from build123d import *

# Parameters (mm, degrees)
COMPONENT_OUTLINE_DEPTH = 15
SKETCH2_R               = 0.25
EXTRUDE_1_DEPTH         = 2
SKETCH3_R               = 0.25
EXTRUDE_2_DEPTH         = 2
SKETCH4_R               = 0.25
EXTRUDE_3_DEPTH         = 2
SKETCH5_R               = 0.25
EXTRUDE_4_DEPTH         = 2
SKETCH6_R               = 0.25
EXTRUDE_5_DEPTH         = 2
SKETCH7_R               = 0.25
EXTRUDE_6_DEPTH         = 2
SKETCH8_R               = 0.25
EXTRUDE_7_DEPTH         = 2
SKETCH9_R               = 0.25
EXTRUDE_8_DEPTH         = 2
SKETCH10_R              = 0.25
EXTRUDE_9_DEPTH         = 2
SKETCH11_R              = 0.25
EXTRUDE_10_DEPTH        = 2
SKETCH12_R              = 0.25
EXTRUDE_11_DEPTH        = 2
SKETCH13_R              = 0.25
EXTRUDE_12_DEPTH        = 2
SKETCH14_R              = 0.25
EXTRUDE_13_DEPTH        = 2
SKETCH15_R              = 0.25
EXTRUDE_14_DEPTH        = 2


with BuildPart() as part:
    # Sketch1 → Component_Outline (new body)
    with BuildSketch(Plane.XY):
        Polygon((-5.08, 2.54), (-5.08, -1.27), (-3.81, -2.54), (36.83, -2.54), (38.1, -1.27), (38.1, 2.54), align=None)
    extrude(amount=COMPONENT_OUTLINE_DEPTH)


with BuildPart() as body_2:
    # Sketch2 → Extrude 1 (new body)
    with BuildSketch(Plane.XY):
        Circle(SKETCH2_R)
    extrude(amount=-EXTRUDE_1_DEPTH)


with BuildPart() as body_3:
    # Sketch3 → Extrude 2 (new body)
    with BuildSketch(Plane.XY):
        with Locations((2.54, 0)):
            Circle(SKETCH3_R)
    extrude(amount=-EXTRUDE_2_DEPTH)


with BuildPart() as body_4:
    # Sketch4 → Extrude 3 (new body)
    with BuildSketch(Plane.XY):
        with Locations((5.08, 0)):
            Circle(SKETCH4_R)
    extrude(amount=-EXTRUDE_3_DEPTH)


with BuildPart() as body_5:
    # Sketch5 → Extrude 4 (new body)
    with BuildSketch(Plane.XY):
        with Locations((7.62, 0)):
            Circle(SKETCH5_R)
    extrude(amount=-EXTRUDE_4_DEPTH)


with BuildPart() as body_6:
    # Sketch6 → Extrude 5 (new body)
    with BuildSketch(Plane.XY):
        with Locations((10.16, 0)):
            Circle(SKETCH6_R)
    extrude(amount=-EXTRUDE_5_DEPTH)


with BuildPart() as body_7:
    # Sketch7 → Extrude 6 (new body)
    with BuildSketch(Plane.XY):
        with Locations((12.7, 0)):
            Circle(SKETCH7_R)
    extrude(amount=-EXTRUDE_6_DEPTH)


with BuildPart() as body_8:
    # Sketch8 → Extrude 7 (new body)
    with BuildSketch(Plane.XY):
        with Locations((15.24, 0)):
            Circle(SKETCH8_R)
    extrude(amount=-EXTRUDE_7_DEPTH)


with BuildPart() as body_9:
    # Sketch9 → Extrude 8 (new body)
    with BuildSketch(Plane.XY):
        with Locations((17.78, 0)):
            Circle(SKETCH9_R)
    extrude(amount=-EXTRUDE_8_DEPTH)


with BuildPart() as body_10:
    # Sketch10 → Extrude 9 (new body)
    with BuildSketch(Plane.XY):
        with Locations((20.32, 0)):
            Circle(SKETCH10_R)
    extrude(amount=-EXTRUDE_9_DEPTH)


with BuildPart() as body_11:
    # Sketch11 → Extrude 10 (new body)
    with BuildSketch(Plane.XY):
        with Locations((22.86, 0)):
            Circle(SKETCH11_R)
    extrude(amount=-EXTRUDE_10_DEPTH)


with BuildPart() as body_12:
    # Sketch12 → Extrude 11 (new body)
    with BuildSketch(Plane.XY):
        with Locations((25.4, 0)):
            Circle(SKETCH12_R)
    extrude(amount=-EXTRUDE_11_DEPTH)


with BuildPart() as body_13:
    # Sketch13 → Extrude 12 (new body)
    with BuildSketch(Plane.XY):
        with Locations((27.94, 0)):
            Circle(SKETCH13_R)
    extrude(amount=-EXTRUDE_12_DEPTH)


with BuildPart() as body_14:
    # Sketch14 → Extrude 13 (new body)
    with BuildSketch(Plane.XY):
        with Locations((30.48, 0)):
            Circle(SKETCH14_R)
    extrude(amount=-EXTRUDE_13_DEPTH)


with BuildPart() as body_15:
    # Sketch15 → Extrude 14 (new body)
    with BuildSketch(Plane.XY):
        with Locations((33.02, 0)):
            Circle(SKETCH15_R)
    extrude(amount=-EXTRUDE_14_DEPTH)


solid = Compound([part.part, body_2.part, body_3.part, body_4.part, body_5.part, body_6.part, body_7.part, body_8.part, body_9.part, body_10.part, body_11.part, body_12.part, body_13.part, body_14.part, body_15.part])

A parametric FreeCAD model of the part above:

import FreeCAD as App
import Part
import Sketcher
Q = App.Units.Quantity

doc = App.newDocument("Part")
body = doc.addObject("PartDesign::Body", "Body")

# Sketch on XY plane
sketch1 = body.newObject("Sketcher::SketchObject", "Sketch")
sketch1.AttachmentSupport = (doc.getObject("XY_Plane"), [""])
sketch1.MapMode = "FlatFace"
sketch1.addGeometry([
    Part.LineSegment(App.Vector(-5.1, 2.5, 0), App.Vector(-5.1, -1.3, 0)),  # 0
    Part.LineSegment(App.Vector(-5.1, -1.3, 0), App.Vector(-3.8, -2.5, 0)),  # 1
    Part.LineSegment(App.Vector(-3.8, -2.5, 0), App.Vector(36.8, -2.5, 0)),  # 2
    Part.LineSegment(App.Vector(36.8, -2.5, 0), App.Vector(38.1, -1.3, 0)),  # 3
    Part.LineSegment(App.Vector(38.1, -1.3, 0), App.Vector(38.1, 2.5, 0)),  # 4
    Part.LineSegment(App.Vector(38.1, 2.5, 0), App.Vector(-5.1, 2.5, 0)),  # 5
], False)
sketch1.addConstraint([
    Sketcher.Constraint("Coincident", 0, 2, 1, 1),
    Sketcher.Constraint("Coincident", 1, 2, 2, 1),
    Sketcher.Constraint("Coincident", 2, 2, 3, 1),
    Sketcher.Constraint("Coincident", 3, 2, 4, 1),
    Sketcher.Constraint("Coincident", 4, 2, 5, 1),
    Sketcher.Constraint("Coincident", 5, 2, 0, 1),
    Sketcher.Constraint("Vertical", 0),
    Sketcher.Constraint("Horizontal", 2),
    Sketcher.Constraint("Vertical", 4),
    Sketcher.Constraint("Horizontal", 5),
    Sketcher.Constraint("Perpendicular", 1, 3),
    Sketcher.Constraint("Horizontal", 0, 2, 3, 2),
    Sketcher.Constraint("Equal", 1, 3),
    Sketcher.Constraint("DistanceX", 2, 1, 2, 2, Q("40.64 mm")),
    Sketcher.Constraint("DistanceX", 5, 2, 5, 1, Q("43.18 mm")),
    Sketcher.Constraint("DistanceY", 0, 2, 0, 1, Q("3.81 mm")),
    Sketcher.Constraint("DistanceX", -1, 1, 3, 2, Q("38.1 mm")),
    Sketcher.Constraint("DistanceY", 0, 2, -1, 1, Q("1.27 mm")),
])
pad1 = body.newObject("PartDesign::Pad", "Pad")
pad1.Profile = sketch1
pad1.Length = 15
body2 = doc.addObject("PartDesign::Body", "Body001")

# Sketch on XY plane
sketch2 = body2.newObject("Sketcher::SketchObject", "Sketch001")
sketch2.AttachmentSupport = (doc.getObject("XY_Plane001"), [""])
sketch2.MapMode = "FlatFace"
sketch2.addGeometry(Part.Circle(App.Vector(0, 0, 0), App.Vector(0, 0, 1), 0.25), False)
sketch2.addConstraint([
    Sketcher.Constraint("Coincident", 0, 3, -1, 1),
    Sketcher.Constraint("Diameter", 0, Q("0.5 mm")),
])
pad2 = body2.newObject("PartDesign::Pad", "Pad001")
pad2.Profile = sketch2
pad2.Length = 2
pad2.Reversed = True
body3 = doc.addObject("PartDesign::Body", "Body002")

# Sketch on XY plane
sketch3 = body3.newObject("Sketcher::SketchObject", "Sketch002")
sketch3.AttachmentSupport = (doc.getObject("XY_Plane002"), [""])
sketch3.MapMode = "FlatFace"
sketch3.addGeometry(Part.Circle(App.Vector(2.54, 0, 0), App.Vector(0, 0, 1), 0.25), False)
sketch3.addConstraint([
    Sketcher.Constraint("PointOnObject", 0, 3, -1),
    Sketcher.Constraint("Diameter", 0, Q("0.5 mm")),
    Sketcher.Constraint("DistanceX", -1, 1, 0, 3, Q("2.54 mm")),
])
pad3 = body3.newObject("PartDesign::Pad", "Pad002")
pad3.Profile = sketch3
pad3.Length = 2
pad3.Reversed = True
body4 = doc.addObject("PartDesign::Body", "Body003")

# Sketch on XY plane
sketch4 = body4.newObject("Sketcher::SketchObject", "Sketch003")
sketch4.AttachmentSupport = (doc.getObject("XY_Plane003"), [""])
sketch4.MapMode = "FlatFace"
sketch4.addGeometry(Part.Circle(App.Vector(5.08, 0, 0), App.Vector(0, 0, 1), 0.25), False)
sketch4.addConstraint([
    Sketcher.Constraint("PointOnObject", 0, 3, -1),
    Sketcher.Constraint("Diameter", 0, Q("0.5 mm")),
    Sketcher.Constraint("DistanceX", -1, 1, 0, 3, Q("5.08 mm")),
])
pad4 = body4.newObject("PartDesign::Pad", "Pad003")
pad4.Profile = sketch4
pad4.Length = 2
pad4.Reversed = True
body5 = doc.addObject("PartDesign::Body", "Body004")

# Sketch on XY plane
sketch5 = body5.newObject("Sketcher::SketchObject", "Sketch004")
sketch5.AttachmentSupport = (doc.getObject("XY_Plane004"), [""])
sketch5.MapMode = "FlatFace"
sketch5.addGeometry(Part.Circle(App.Vector(7.62, 0, 0), App.Vector(0, 0, 1), 0.25), False)
sketch5.addConstraint([
    Sketcher.Constraint("PointOnObject", 0, 3, -1),
    Sketcher.Constraint("Diameter", 0, Q("0.5 mm")),
    Sketcher.Constraint("DistanceX", -1, 1, 0, 3, Q("7.62 mm")),
])
pad5 = body5.newObject("PartDesign::Pad", "Pad004")
pad5.Profile = sketch5
pad5.Length = 2
pad5.Reversed = True
body6 = doc.addObject("PartDesign::Body", "Body005")

# Sketch on XY plane
sketch6 = body6.newObject("Sketcher::SketchObject", "Sketch005")
sketch6.AttachmentSupport = (doc.getObject("XY_Plane005"), [""])
sketch6.MapMode = "FlatFace"
sketch6.addGeometry(Part.Circle(App.Vector(10.16, 0, 0), App.Vector(0, 0, 1), 0.25), False)
sketch6.addConstraint([
    Sketcher.Constraint("PointOnObject", 0, 3, -1),
    Sketcher.Constraint("Diameter", 0, Q("0.5 mm")),
    Sketcher.Constraint("DistanceX", -1, 1, 0, 3, Q("10.16 mm")),
])
pad6 = body6.newObject("PartDesign::Pad", "Pad005")
pad6.Profile = sketch6
pad6.Length = 2
pad6.Reversed = True
body7 = doc.addObject("PartDesign::Body", "Body006")

# Sketch on XY plane
sketch7 = body7.newObject("Sketcher::SketchObject", "Sketch006")
sketch7.AttachmentSupport = (doc.getObject("XY_Plane006"), [""])
sketch7.MapMode = "FlatFace"
sketch7.addGeometry(Part.Circle(App.Vector(12.7, 0, 0), App.Vector(0, 0, 1), 0.25), False)
sketch7.addConstraint([
    Sketcher.Constraint("PointOnObject", 0, 3, -1),
    Sketcher.Constraint("Diameter", 0, Q("0.5 mm")),
    Sketcher.Constraint("DistanceX", -1, 1, 0, 3, Q("12.7 mm")),
])
pad7 = body7.newObject("PartDesign::Pad", "Pad006")
pad7.Profile = sketch7
pad7.Length = 2
pad7.Reversed = True
body8 = doc.addObject("PartDesign::Body", "Body007")

# Sketch on XY plane
sketch8 = body8.newObject("Sketcher::SketchObject", "Sketch007")
sketch8.AttachmentSupport = (doc.getObject("XY_Plane007"), [""])
sketch8.MapMode = "FlatFace"
sketch8.addGeometry(Part.Circle(App.Vector(15.24, 0, 0), App.Vector(0, 0, 1), 0.25), False)
sketch8.addConstraint([
    Sketcher.Constraint("PointOnObject", 0, 3, -1),
    Sketcher.Constraint("Diameter", 0, Q("0.5 mm")),
    Sketcher.Constraint("DistanceX", -1, 1, 0, 3, Q("15.24 mm")),
])
pad8 = body8.newObject("PartDesign::Pad", "Pad007")
pad8.Profile = sketch8
pad8.Length = 2
pad8.Reversed = True
body9 = doc.addObject("PartDesign::Body", "Body008")

# Sketch on XY plane
sketch9 = body9.newObject("Sketcher::SketchObject", "Sketch008")
sketch9.AttachmentSupport = (doc.getObject("XY_Plane008"), [""])
sketch9.MapMode = "FlatFace"
sketch9.addGeometry(Part.Circle(App.Vector(17.78, 0, 0), App.Vector(0, 0, 1), 0.25), False)
sketch9.addConstraint([
    Sketcher.Constraint("PointOnObject", 0, 3, -1),
    Sketcher.Constraint("Diameter", 0, Q("0.5 mm")),
    Sketcher.Constraint("DistanceX", -1, 1, 0, 3, Q("17.78 mm")),
])
pad9 = body9.newObject("PartDesign::Pad", "Pad008")
pad9.Profile = sketch9
pad9.Length = 2
pad9.Reversed = True
body10 = doc.addObject("PartDesign::Body", "Body009")

# Sketch on XY plane
sketch10 = body10.newObject("Sketcher::SketchObject", "Sketch009")
sketch10.AttachmentSupport = (doc.getObject("XY_Plane009"), [""])
sketch10.MapMode = "FlatFace"
sketch10.addGeometry(Part.Circle(App.Vector(20.32, 0, 0), App.Vector(0, 0, 1), 0.25), False)
sketch10.addConstraint([
    Sketcher.Constraint("PointOnObject", 0, 3, -1),
    Sketcher.Constraint("Diameter", 0, Q("0.5 mm")),
    Sketcher.Constraint("DistanceX", -1, 1, 0, 3, Q("20.32 mm")),
])
pad10 = body10.newObject("PartDesign::Pad", "Pad009")
pad10.Profile = sketch10
pad10.Length = 2
pad10.Reversed = True
body11 = doc.addObject("PartDesign::Body", "Body010")

# Sketch on XY plane
sketch11 = body11.newObject("Sketcher::SketchObject", "Sketch010")
sketch11.AttachmentSupport = (doc.getObject("XY_Plane010"), [""])
sketch11.MapMode = "FlatFace"
sketch11.addGeometry(Part.Circle(App.Vector(22.86, 0, 0), App.Vector(0, 0, 1), 0.25), False)
sketch11.addConstraint([
    Sketcher.Constraint("PointOnObject", 0, 3, -1),
    Sketcher.Constraint("Diameter", 0, Q("0.5 mm")),
    Sketcher.Constraint("DistanceX", -1, 1, 0, 3, Q("22.86 mm")),
])
pad11 = body11.newObject("PartDesign::Pad", "Pad010")
pad11.Profile = sketch11
pad11.Length = 2
pad11.Reversed = True
body12 = doc.addObject("PartDesign::Body", "Body011")

# Sketch on XY plane
sketch12 = body12.newObject("Sketcher::SketchObject", "Sketch011")
sketch12.AttachmentSupport = (doc.getObject("XY_Plane011"), [""])
sketch12.MapMode = "FlatFace"
sketch12.addGeometry(Part.Circle(App.Vector(25.4, 0, 0), App.Vector(0, 0, 1), 0.25), False)
sketch12.addConstraint([
    Sketcher.Constraint("PointOnObject", 0, 3, -1),
    Sketcher.Constraint("Diameter", 0, Q("0.5 mm")),
    Sketcher.Constraint("DistanceX", -1, 1, 0, 3, Q("25.4 mm")),
])
pad12 = body12.newObject("PartDesign::Pad", "Pad011")
pad12.Profile = sketch12
pad12.Length = 2
pad12.Reversed = True
body13 = doc.addObject("PartDesign::Body", "Body012")

# Sketch on XY plane
sketch13 = body13.newObject("Sketcher::SketchObject", "Sketch012")
sketch13.AttachmentSupport = (doc.getObject("XY_Plane012"), [""])
sketch13.MapMode = "FlatFace"
sketch13.addGeometry(Part.Circle(App.Vector(27.94, 0, 0), App.Vector(0, 0, 1), 0.25), False)
sketch13.addConstraint([
    Sketcher.Constraint("PointOnObject", 0, 3, -1),
    Sketcher.Constraint("Diameter", 0, Q("0.5 mm")),
    Sketcher.Constraint("DistanceX", -1, 1, 0, 3, Q("27.94 mm")),
])
pad13 = body13.newObject("PartDesign::Pad", "Pad012")
pad13.Profile = sketch13
pad13.Length = 2
pad13.Reversed = True
body14 = doc.addObject("PartDesign::Body", "Body013")

# Sketch on XY plane
sketch14 = body14.newObject("Sketcher::SketchObject", "Sketch013")
sketch14.AttachmentSupport = (doc.getObject("XY_Plane013"), [""])
sketch14.MapMode = "FlatFace"
sketch14.addGeometry(Part.Circle(App.Vector(30.48, 0, 0), App.Vector(0, 0, 1), 0.25), False)
sketch14.addConstraint([
    Sketcher.Constraint("PointOnObject", 0, 3, -1),
    Sketcher.Constraint("Diameter", 0, Q("0.5 mm")),
    Sketcher.Constraint("DistanceX", -1, 1, 0, 3, Q("30.48 mm")),
])
pad14 = body14.newObject("PartDesign::Pad", "Pad013")
pad14.Profile = sketch14
pad14.Length = 2
pad14.Reversed = True
body15 = doc.addObject("PartDesign::Body", "Body014")

# Sketch on XY plane
sketch15 = body15.newObject("Sketcher::SketchObject", "Sketch014")
sketch15.AttachmentSupport = (doc.getObject("XY_Plane014"), [""])
sketch15.MapMode = "FlatFace"
sketch15.addGeometry(Part.Circle(App.Vector(33.02, 0, 0), App.Vector(0, 0, 1), 0.25), False)
sketch15.addConstraint([
    Sketcher.Constraint("PointOnObject", 0, 3, -1),
    Sketcher.Constraint("Diameter", 0, Q("0.5 mm")),
    Sketcher.Constraint("DistanceX", -1, 1, 0, 3, Q("33.02 mm")),
])
pad15 = body15.newObject("PartDesign::Pad", "Pad014")
pad15.Profile = sketch15
pad15.Length = 2
pad15.Reversed = True

doc.recompute()
